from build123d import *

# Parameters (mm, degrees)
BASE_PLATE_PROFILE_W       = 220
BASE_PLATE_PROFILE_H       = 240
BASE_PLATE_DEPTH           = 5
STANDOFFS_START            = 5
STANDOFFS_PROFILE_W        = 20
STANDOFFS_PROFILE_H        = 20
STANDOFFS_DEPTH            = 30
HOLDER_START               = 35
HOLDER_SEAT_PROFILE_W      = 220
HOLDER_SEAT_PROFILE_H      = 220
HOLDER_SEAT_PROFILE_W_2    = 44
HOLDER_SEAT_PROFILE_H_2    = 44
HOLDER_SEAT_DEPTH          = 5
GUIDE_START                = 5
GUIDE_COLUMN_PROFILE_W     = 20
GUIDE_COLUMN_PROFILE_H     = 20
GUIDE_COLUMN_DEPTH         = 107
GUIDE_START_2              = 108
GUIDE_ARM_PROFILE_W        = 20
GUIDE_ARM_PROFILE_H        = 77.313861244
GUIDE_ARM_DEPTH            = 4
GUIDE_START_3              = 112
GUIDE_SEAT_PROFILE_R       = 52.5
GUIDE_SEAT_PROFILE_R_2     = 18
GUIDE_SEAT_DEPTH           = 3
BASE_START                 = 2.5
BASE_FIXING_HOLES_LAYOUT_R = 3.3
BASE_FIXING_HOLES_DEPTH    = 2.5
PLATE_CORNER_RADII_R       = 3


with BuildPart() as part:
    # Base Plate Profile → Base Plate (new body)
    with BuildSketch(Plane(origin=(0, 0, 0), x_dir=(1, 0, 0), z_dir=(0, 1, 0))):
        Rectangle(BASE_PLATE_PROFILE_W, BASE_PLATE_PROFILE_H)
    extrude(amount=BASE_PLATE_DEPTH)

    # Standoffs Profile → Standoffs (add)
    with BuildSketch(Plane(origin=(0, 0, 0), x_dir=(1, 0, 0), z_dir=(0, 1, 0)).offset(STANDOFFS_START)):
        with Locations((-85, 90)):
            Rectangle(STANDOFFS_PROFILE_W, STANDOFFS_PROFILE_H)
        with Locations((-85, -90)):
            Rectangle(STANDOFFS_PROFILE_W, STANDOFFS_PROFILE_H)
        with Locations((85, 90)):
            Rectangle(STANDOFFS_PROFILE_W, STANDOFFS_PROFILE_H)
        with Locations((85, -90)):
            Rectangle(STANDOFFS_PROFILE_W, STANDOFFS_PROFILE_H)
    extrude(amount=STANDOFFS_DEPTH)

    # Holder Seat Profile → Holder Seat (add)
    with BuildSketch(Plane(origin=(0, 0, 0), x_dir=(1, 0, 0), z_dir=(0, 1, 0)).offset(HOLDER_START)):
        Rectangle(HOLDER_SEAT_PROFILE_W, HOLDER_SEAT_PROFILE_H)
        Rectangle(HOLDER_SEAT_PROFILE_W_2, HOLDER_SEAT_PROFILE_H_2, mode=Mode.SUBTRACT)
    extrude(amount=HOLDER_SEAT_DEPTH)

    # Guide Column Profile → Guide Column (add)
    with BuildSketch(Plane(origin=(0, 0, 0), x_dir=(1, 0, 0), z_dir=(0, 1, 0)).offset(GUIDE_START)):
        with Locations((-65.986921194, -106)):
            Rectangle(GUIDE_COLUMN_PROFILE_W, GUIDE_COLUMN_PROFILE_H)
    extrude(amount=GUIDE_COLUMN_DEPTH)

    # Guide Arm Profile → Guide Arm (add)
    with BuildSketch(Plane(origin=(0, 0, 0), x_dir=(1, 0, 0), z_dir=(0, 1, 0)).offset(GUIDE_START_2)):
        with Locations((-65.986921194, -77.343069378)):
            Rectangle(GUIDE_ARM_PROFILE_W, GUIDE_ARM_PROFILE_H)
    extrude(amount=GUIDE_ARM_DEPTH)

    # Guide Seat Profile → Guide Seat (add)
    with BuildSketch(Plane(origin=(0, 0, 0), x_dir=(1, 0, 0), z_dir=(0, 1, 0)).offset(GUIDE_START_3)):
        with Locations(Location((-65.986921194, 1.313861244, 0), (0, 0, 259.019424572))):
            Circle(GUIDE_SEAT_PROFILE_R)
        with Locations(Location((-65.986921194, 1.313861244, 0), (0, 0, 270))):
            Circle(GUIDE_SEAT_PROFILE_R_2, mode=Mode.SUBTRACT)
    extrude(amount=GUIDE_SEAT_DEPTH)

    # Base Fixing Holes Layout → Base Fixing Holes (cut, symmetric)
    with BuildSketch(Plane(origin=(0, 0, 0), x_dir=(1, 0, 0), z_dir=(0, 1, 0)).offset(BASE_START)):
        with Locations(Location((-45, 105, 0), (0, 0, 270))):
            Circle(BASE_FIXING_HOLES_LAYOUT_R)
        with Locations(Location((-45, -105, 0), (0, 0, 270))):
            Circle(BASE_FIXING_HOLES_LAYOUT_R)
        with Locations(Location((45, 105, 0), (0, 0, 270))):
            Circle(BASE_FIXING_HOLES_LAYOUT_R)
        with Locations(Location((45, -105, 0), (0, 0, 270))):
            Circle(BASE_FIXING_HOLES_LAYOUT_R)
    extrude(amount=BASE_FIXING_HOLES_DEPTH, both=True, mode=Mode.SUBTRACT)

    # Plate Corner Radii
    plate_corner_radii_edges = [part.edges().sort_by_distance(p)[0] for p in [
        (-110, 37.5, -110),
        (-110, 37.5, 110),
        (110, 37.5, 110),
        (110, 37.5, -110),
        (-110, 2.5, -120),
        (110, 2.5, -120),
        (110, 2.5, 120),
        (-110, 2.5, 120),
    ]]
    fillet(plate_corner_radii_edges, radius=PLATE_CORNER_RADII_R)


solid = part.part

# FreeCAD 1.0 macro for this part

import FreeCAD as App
import Part
import Sketcher

V = App.Vector
Q = App.Units.Quantity


def edges_at(feature, points):
    """Names of the edges that pass closest to the given points."""
    edges = feature.Shape.Edges
    near = lambda p: min(range(len(edges)), key=lambda i: edges[i].distToShape(Part.Vertex(*p))[0])
    return sorted({f"Edge{near(p) + 1}" for p in points})


def add_polygon(sketch, points):
    """Adds a closed chain of lines whose ends are joined by coincident constraints."""
    first, n = sketch.GeometryCount, len(points)
    for a, b in zip(points, points[1:] + points[:1]):
        sketch.addGeometry(Part.LineSegment(App.Vector(*a, 0), App.Vector(*b, 0)), False)
    for i in range(n):
        sketch.addConstraint(Sketcher.Constraint("Coincident", first + i, 2, first + (i + 1) % n, 1))

doc = App.newDocument("Part")
params = doc.addObject("Spreadsheet::Sheet", "Params")
for row, (alias, value) in enumerate([
    ("sketch1_width", "220 mm"),
    ("sketch1_height", "240 mm"),
    ("pad1_length", "5 mm"),
    ("sketch2_width", "20 mm"),
    ("pad2_length", "30 mm"),
    ("sketch3_width", "220 mm"),
    ("sketch3_width2", "44 mm"),
    ("pad3_length", "5 mm"),
    ("sketch4_width", "20 mm"),
    ("pad4_length", "107 mm"),
    ("sketch5_width", "20 mm"),
    ("pad5_length", "4 mm"),
    ("sketch6_diameter", "105 mm"),
    ("sketch6_diameter2", "36 mm"),
    ("pad6_length", "3 mm"),
    ("sketch7_diameter", "6.6 mm"),
    ("pocket1_length", "5 mm"),
    ("fillet_radius", "3 mm"),
], start=1):
    params.set(f"A{row}", alias)
    params.set(f"B{row}", "=" + value)
    params.setAlias(f"B{row}", alias)

body = doc.addObject("PartDesign::Body", "Body")

# Sketch on XZ plane
sketch1 = body.newObject("Sketcher::SketchObject", "Sketch")
sketch1.AttachmentSupport = (doc.getObject("XZ_Plane"), [""])
sketch1.MapMode = "FlatFace"
add_polygon(sketch1, [(-110, -120), (-110, 120), (110, 120), (110, -120)])  # lines 0-3
sketch1.addConstraint(Sketcher.Constraint("Vertical", 0))
sketch1.addConstraint(Sketcher.Constraint("Horizontal", 1))
sketch1.addConstraint(Sketcher.Constraint("Vertical", 2))
sketch1.addConstraint(Sketcher.Constraint("Horizontal", 3))
sketch1.addConstraint(Sketcher.Constraint("Symmetric", 0, 2, 2, 2, -1, 1))
sketch1.addConstraint(Sketcher.Constraint("DistanceX", 1, 1, 1, 2, Q("220 mm")))
sketch1.addConstraint(Sketcher.Constraint("DistanceY", 0, 1, 0, 2, Q("240 mm")))
sketch1.setExpression("Constraints[9]", "Params.sketch1_width")
sketch1.setExpression("Constraints[10]", "Params.sketch1_height")
pad1 = body.newObject("PartDesign::Pad", "Pad")
pad1.Profile = sketch1
pad1.setExpression("Length", "Params.pad1_length")
pad1.Reversed = True

# Sketch on XZ plane
sketch2 = body.newObject("Sketcher::SketchObject", "Sketch001")
sketch2.AttachmentSupport = (doc.getObject("XZ_Plane"), [""])
sketch2.MapMode = "FlatFace"
sketch2.AttachmentOffset = App.Placement(V(0, 0, -5), App.Rotation())
add_polygon(sketch2, [(-95, -100), (-95, -80), (-75, -80), (-75, -100)])  # lines 0-3
add_polygon(sketch2, [(-95, 80), (-95, 100), (-75, 100), (-75, 80)])  # lines 4-7
add_polygon(sketch2, [(75, -100), (75, -80), (95, -80), (95, -100)])  # lines 8-11
add_polygon(sketch2, [(75, 80), (75, 100), (95, 100), (95, 80)])  # lines 12-15
sketch2.addConstraint(Sketcher.Constraint("Vertical", 0))
sketch2.addConstraint(Sketcher.Constraint("Horizontal", 1))
sketch2.addConstraint(Sketcher.Constraint("Vertical", 2))
sketch2.addConstraint(Sketcher.Constraint("Horizontal", 3))
sketch2.addConstraint(Sketcher.Constraint("Vertical", 4))
sketch2.addConstraint(Sketcher.Constraint("Horizontal", 5))
sketch2.addConstraint(Sketcher.Constraint("Vertical", 6))
sketch2.addConstraint(Sketcher.Constraint("Horizontal", 7))
sketch2.addConstraint(Sketcher.Constraint("Vertical", 8))
sketch2.addConstraint(Sketcher.Constraint("Horizontal", 9))
sketch2.addConstraint(Sketcher.Constraint("Vertical", 10))
sketch2.addConstraint(Sketcher.Constraint("Horizontal", 11))
sketch2.addConstraint(Sketcher.Constraint("Vertical", 12))
sketch2.addConstraint(Sketcher.Constraint("Horizontal", 13))
sketch2.addConstraint(Sketcher.Constraint("Vertical", 14))
sketch2.addConstraint(Sketcher.Constraint("Horizontal", 15))
sketch2.addConstraint(Sketcher.Constraint("Symmetric", 6, 2, 8, 2, -1, 1))
sketch2.addConstraint(Sketcher.Constraint("Symmetric", 4, 2, 10, 2, -1, 1))
sketch2.addConstraint(Sketcher.Constraint("Symmetric", 2, 2, 12, 2, -1, 1))
sketch2.addConstraint(Sketcher.Constraint("Symmetric", 0, 2, 14, 2, -1, 1))
sketch2.addConstraint(Sketcher.Constraint("Symmetric", 1, 2, 8, 2, -2))
sketch2.addConstraint(Sketcher.Constraint("Symmetric", 3, 2, 10, 2, -2))
sketch2.addConstraint(Sketcher.Constraint("Equal", 15, 0))
sketch2.addConstraint(Sketcher.Constraint("DistanceX", 1, 1, 1, 2, Q("20 mm")))
sketch2.addConstraint(Sketcher.Constraint("DistanceX", 0, 2, -1, 1, Q("95 mm")))
sketch2.addConstraint(Sketcher.Constraint("DistanceY", 0, 2, -1, 1, Q("80 mm")))
sketch2.setExpression("Constraints[39]", "Params.sketch2_width")
pad2 = body.newObject("PartDesign::Pad", "Pad001")
pad2.Profile = sketch2
pad2.setExpression("Length", "Params.pad2_length")
pad2.Reversed = True

# Sketch on XZ plane
sketch3 = body.newObject("Sketcher::SketchObject", "Sketch002")
sketch3.AttachmentSupport = (doc.getObject("XZ_Plane"), [""])
sketch3.MapMode = "FlatFace"
sketch3.AttachmentOffset = App.Placement(V(0, 0, -35), App.Rotation())
add_polygon(sketch3, [(-110, -110), (-110, 110), (110, 110), (110, -110)])  # lines 0-3
add_polygon(sketch3, [(22, 22), (-22, 22), (-22, -22), (22, -22)])  # lines 4-7
sketch3.addConstraint(Sketcher.Constraint("Vertical", 0))
sketch3.addConstraint(Sketcher.Constraint("Horizontal", 1))
sketch3.addConstraint(Sketcher.Constraint("Vertical", 2))
sketch3.addConstraint(Sketcher.Constraint("Horizontal", 3))
sketch3.addConstraint(Sketcher.Constraint("Horizontal", 4))
sketch3.addConstraint(Sketcher.Constraint("Vertical", 5))
sketch3.addConstraint(Sketcher.Constraint("Horizontal", 6))
sketch3.addConstraint(Sketcher.Constraint("Vertical", 7))
sketch3.addConstraint(Sketcher.Constraint("Symmetric", 0, 2, 2, 2, -1, 1))
sketch3.addConstraint(Sketcher.Constraint("Symmetric", 4, 2, 6, 2, -1, 1))
sketch3.addConstraint(Sketcher.Constraint("Equal", 3, 0))
sketch3.addConstraint(Sketcher.Constraint("Equal", 6, 5))
sketch3.addConstraint(Sketcher.Constraint("DistanceX", 1, 1, 1, 2, Q("220 mm")))
sketch3.addConstraint(Sketcher.Constraint("DistanceX", 4, 2, 4, 1, Q("44 mm")))
sketch3.setExpression("Constraints[20]", "Params.sketch3_width")
sketch3.setExpression("Constraints[21]", "Params.sketch3_width2")
pad3 = body.newObject("PartDesign::Pad", "Pad002")
pad3.Profile = sketch3
pad3.setExpression("Length", "Params.pad3_length")
pad3.Reversed = True

# Sketch on XZ plane
sketch4 = body.newObject("Sketcher::SketchObject", "Sketch003")
sketch4.AttachmentSupport = (doc.getObject("XZ_Plane"), [""])
sketch4.MapMode = "FlatFace"
sketch4.AttachmentOffset = App.Placement(V(0, 0, -5), App.Rotation())
add_polygon(sketch4, [(-76, 96), (-76, 116), (-56, 116), (-56, 96)])  # lines 0-3
sketch4.addConstraint(Sketcher.Constraint("Vertical", 0))
sketch4.addConstraint(Sketcher.Constraint("Horizontal", 1))
sketch4.addConstraint(Sketcher.Constraint("Vertical", 2))
sketch4.addConstraint(Sketcher.Constraint("Horizontal", 3))
sketch4.addConstraint(Sketcher.Constraint("Equal", 3, 0))
sketch4.addConstraint(Sketcher.Constraint("DistanceX", 1, 1, 1, 2, Q("20 mm")))
sketch4.addConstraint(Sketcher.Constraint("DistanceY", -1, 1, 0, 2, Q("116 mm")))
sketch4.addConstraint(Sketcher.Constraint("DistanceX", 0, 2, -1, 1, Q("75.986921 mm")))
sketch4.setExpression("Constraints[9]", "Params.sketch4_width")
pad4 = body.newObject("PartDesign::Pad", "Pad003")
pad4.Profile = sketch4
pad4.setExpression("Length", "Params.pad4_length")
pad4.Reversed = True

# Sketch on XZ plane
sketch5 = body.newObject("Sketcher::SketchObject", "Sketch004")
sketch5.AttachmentSupport = (doc.getObject("XZ_Plane"), [""])
sketch5.MapMode = "FlatFace"
sketch5.AttachmentOffset = App.Placement(V(0, 0, -108), App.Rotation())
add_polygon(sketch5, [(-76, 39), (-76, 116), (-56, 116), (-56, 39)])  # lines 0-3
sketch5.addConstraint(Sketcher.Constraint("Vertical", 0))
sketch5.addConstraint(Sketcher.Constraint("Horizontal", 1))
sketch5.addConstraint(Sketcher.Constraint("Vertical", 2))
sketch5.addConstraint(Sketcher.Constraint("Horizontal", 3))
sketch5.addConstraint(Sketcher.Constraint("DistanceX", 1, 1, 1, 2, Q("20 mm")))
sketch5.addConstraint(Sketcher.Constraint("DistanceY", -1, 1, 0, 2, Q("116 mm")))
sketch5.addConstraint(Sketcher.Constraint("DistanceY", 0, 1, 0, 2, Q("77.313861 mm")))
sketch5.addConstraint(Sketcher.Constraint("DistanceX", 0, 2, -1, 1, Q("75.986921 mm")))
sketch5.setExpression("Constraints[8]", "Params.sketch5_width")
pad5 = body.newObject("PartDesign::Pad", "Pad004")
pad5.Profile = sketch5
pad5.setExpression("Length", "Params.pad5_length")
pad5.Reversed = True

# Sketch on XZ plane
sketch6 = body.newObject("Sketcher::SketchObject", "Sketch005")
sketch6.AttachmentSupport = (doc.getObject("XZ_Plane"), [""])
sketch6.MapMode = "FlatFace"
sketch6.AttachmentOffset = App.Placement(V(0, 0, -112), App.Rotation())
sketch6.addGeometry(Part.Circle(V(-66, -1, 0), V(0, 0, 1), 52), False)
sketch6.addGeometry(Part.Circle(V(-66, -1, 0), V(0, 0, 1), 18), False)
sketch6.addConstraint(Sketcher.Constraint("Coincident", 1, 3, 0, 3))
sketch6.addConstraint(Sketcher.Constraint("Diameter", 0, Q("105 mm")))
sketch6.addConstraint(Sketcher.Constraint("Diameter", 1, Q("36 mm")))
sketch6.addConstraint(Sketcher.Constraint("DistanceX", 0, 3, -1, 1, Q("65.986921 mm")))
sketch6.addConstraint(Sketcher.Constraint("DistanceY", 0, 3, -1, 1, Q("1.313861 mm")))
sketch6.setExpression("Constraints[1]", "Params.sketch6_diameter")
sketch6.setExpression("Constraints[2]", "Params.sketch6_diameter2")
pad6 = body.newObject("PartDesign::Pad", "Pad005")
pad6.Profile = sketch6
pad6.setExpression("Length", "Params.pad6_length")
pad6.Reversed = True

# Sketch on XZ plane
sketch7 = body.newObject("Sketcher::SketchObject", "Sketch006")
sketch7.AttachmentSupport = (doc.getObject("XZ_Plane"), [""])
sketch7.MapMode = "FlatFace"
sketch7.AttachmentOffset = App.Placement(V(0, 0, -2.5), App.Rotation())
sketch7.addGeometry(Part.Circle(V(-45, -105, 0), V(0, 0, 1), 3.3), False)
sketch7.addGeometry(Part.Circle(V(-45, 105, 0), V(0, 0, 1), 3.3), False)
sketch7.addGeometry(Part.Circle(V(45, -105, 0), V(0, 0, 1), 3.3), False)
sketch7.addGeometry(Part.Circle(V(45, 105, 0), V(0, 0, 1), 3.3), False)
sketch7.addConstraint(Sketcher.Constraint("Equal", 0, 1))
sketch7.addConstraint(Sketcher.Constraint("Equal", 1, 2))
sketch7.addConstraint(Sketcher.Constraint("Equal", 2, 3))
sketch7.addConstraint(Sketcher.Constraint("Symmetric", 1, 3, 2, 3, -1, 1))
sketch7.addConstraint(Sketcher.Constraint("Symmetric", 0, 3, 3, 3, -1, 1))
sketch7.addConstraint(Sketcher.Constraint("Symmetric", 0, 3, 2, 3, -2))
sketch7.addConstraint(Sketcher.Constraint("Diameter", 0, Q("6.6 mm")))
sketch7.addConstraint(Sketcher.Constraint("DistanceX", 0, 3, -1, 1, Q("45 mm")))
sketch7.addConstraint(Sketcher.Constraint("DistanceY", 0, 3, -1, 1, Q("105 mm")))
sketch7.setExpression("Constraints[6]", "Params.sketch7_diameter")
pocket1 = body.newObject("PartDesign::Pocket", "Pocket")
pocket1.Profile = sketch7
pocket1.setExpression("Length", "Params.pocket1_length")
pocket1.Midplane = True
doc.recompute()

fillet = body.newObject("PartDesign::Fillet", "Fillet")
fillet.Base = (pocket1, edges_at(pocket1, [
    (-110, 37.5, -110),
    (-110, 37.5, 110),
    (110, 37.5, 110),
    (110, 37.5, -110),
    (-110, 2.5, -120),
    (110, 2.5, -120),
    (110, 2.5, 120),
    (-110, 2.5, 120),
]))
fillet.setExpression("Radius", "Params.fillet_radius")

doc.recompute()
